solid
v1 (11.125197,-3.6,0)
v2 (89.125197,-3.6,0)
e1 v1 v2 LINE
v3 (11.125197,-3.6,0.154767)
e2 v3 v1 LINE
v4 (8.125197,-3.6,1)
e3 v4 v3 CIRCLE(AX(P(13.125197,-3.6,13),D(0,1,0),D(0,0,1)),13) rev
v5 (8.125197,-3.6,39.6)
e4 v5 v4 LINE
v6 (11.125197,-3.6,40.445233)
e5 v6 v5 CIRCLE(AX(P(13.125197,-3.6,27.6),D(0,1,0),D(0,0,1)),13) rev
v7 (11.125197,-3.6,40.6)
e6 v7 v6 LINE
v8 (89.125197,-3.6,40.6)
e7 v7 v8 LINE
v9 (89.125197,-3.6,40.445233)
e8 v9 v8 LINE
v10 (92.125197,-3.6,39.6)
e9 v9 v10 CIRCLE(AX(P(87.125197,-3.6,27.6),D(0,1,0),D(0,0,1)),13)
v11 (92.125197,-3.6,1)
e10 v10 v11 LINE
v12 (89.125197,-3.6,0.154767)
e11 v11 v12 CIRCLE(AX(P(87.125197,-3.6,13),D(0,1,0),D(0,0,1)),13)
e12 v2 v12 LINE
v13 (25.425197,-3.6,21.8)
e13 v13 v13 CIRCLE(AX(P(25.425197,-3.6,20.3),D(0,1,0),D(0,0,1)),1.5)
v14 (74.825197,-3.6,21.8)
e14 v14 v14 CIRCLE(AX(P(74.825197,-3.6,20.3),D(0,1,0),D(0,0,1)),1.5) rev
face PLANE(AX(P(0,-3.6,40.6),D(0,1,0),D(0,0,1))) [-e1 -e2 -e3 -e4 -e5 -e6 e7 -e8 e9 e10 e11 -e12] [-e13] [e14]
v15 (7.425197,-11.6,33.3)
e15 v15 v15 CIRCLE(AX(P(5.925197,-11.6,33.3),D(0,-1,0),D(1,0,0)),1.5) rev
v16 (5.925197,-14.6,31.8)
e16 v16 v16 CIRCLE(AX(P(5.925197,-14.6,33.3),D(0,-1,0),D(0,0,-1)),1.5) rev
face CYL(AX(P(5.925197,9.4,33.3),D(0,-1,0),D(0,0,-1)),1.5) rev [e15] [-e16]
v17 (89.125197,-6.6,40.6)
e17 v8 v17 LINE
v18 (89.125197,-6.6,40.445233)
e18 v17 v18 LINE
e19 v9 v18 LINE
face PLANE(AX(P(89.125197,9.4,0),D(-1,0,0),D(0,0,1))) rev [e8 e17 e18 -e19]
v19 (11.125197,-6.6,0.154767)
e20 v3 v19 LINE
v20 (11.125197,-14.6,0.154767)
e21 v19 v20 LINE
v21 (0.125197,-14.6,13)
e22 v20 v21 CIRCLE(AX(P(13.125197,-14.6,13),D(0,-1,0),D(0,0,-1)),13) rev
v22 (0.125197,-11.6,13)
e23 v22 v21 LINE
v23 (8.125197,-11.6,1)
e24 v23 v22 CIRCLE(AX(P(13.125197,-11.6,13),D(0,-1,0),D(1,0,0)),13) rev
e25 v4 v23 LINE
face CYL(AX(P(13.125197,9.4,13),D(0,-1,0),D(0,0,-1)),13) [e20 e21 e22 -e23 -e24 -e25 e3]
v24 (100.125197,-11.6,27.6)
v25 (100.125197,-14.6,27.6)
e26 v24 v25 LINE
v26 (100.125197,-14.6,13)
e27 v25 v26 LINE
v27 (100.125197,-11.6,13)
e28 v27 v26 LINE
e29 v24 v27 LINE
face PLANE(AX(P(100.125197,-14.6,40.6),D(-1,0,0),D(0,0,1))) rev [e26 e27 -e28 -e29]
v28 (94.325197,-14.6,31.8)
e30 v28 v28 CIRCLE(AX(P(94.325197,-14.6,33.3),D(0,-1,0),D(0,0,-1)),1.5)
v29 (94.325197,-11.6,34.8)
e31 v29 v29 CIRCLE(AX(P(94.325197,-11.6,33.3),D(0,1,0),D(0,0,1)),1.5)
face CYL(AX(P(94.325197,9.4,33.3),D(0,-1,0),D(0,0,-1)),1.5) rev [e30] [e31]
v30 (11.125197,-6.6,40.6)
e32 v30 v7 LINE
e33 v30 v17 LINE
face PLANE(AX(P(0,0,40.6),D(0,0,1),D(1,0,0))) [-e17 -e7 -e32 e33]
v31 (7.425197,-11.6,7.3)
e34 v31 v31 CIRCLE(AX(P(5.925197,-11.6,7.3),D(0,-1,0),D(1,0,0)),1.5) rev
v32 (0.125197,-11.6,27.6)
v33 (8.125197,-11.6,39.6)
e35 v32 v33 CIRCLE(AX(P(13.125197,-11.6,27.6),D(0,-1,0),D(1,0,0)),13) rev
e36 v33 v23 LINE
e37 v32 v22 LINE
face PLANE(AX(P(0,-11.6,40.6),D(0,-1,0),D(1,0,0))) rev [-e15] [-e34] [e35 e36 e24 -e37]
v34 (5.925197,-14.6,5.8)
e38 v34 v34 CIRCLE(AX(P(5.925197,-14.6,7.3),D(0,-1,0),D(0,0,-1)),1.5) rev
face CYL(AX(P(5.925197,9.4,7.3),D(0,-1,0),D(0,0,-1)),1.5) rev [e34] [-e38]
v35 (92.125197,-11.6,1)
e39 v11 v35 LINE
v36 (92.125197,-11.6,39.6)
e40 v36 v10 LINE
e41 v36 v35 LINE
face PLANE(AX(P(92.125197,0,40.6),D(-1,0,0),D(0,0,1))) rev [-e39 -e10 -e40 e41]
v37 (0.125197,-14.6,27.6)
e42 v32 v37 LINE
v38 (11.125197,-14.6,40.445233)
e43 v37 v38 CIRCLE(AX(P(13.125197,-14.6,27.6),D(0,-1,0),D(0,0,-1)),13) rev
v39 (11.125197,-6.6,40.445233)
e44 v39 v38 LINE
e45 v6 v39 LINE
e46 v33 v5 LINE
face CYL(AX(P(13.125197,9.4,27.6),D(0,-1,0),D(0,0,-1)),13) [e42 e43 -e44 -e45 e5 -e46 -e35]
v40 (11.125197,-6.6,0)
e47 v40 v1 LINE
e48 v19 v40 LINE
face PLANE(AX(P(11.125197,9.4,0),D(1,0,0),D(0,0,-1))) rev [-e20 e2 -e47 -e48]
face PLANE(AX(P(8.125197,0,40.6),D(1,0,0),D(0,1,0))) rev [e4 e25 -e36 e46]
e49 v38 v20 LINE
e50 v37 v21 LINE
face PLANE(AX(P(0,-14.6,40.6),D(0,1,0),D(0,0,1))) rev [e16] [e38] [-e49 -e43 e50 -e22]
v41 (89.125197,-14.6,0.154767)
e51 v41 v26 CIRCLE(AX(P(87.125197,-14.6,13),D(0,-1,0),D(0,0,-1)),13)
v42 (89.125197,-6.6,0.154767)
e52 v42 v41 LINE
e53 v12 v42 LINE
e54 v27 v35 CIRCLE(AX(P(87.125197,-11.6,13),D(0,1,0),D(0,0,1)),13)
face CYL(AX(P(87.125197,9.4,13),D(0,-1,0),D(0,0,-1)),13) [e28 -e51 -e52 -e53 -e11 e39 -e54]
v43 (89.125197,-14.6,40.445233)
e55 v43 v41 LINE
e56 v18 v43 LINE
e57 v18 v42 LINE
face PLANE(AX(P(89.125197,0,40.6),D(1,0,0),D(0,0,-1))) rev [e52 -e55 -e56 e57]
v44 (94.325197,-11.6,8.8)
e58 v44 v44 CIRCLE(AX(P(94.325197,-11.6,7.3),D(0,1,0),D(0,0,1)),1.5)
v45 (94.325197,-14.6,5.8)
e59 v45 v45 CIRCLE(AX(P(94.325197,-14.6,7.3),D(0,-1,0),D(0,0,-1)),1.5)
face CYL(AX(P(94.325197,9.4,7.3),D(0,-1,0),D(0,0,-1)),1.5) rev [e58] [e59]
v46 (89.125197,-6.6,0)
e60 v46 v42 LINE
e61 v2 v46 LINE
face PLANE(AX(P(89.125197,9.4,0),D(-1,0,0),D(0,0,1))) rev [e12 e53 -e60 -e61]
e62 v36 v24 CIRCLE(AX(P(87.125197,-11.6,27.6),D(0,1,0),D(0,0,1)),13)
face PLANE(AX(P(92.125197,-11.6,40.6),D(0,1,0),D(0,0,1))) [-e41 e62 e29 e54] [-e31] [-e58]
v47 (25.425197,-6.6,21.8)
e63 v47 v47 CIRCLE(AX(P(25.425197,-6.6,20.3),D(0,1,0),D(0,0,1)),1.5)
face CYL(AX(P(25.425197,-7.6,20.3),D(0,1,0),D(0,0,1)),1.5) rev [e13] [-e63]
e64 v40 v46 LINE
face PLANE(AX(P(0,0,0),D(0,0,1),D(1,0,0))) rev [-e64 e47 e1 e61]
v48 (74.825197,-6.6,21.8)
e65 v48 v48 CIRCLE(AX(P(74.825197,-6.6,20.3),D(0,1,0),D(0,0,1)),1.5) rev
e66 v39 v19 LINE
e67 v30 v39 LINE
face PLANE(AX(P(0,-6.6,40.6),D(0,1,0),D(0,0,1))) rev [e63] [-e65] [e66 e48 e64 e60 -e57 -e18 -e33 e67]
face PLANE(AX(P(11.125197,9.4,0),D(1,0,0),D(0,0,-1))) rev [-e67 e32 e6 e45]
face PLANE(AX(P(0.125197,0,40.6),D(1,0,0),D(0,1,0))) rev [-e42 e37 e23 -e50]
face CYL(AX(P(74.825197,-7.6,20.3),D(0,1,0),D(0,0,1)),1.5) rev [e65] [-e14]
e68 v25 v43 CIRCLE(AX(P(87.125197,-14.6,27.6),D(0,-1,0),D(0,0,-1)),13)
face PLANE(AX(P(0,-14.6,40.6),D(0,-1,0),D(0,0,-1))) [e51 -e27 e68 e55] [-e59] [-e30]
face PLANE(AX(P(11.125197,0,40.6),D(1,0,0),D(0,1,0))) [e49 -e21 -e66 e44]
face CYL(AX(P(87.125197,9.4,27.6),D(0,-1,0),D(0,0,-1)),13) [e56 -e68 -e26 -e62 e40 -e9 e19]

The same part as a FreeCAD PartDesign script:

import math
import FreeCAD as App
import Part
import Sketcher

V = App.Vector
Q = App.Units.Quantity

doc = App.newDocument("Part")
body = doc.addObject("PartDesign::Body", "Body")

# Sketch on XY plane
sketch1 = body.newObject("Sketcher::SketchObject", "Sketch")
sketch1.AttachmentSupport = (doc.getObject("XY_Plane"), [""])
sketch1.MapMode = "FlatFace"
sketch1.addGeometry(Part.LineSegment(V(8.1, -3.6, 0), V(8.1, -11.6, 0)), False)
sketch1.addGeometry(Part.LineSegment(V(8.1, -11.6, 0), V(0.1, -11.6, 0)), False)
sketch1.addGeometry(Part.LineSegment(V(0.1, -11.6, 0), V(0.1, -14.6, 0)), False)
sketch1.addGeometry(Part.LineSegment(V(0.1, -14.6, 0), V(11.1, -14.6, 0)), False)
sketch1.addGeometry(Part.LineSegment(V(11.1, -14.6, 0), V(11.1, -6.6, 0)), False)
sketch1.addGeometry(Part.LineSegment(V(11.1, -6.6, 0), V(89.1, -6.6, 0)), False)
sketch1.addGeometry(Part.LineSegment(V(89.1, -6.6, 0), V(89.1, -14.6, 0)), False)
sketch1.addGeometry(Part.LineSegment(V(89.1, -14.6, 0), V(100.1, -14.6, 0)), False)
sketch1.addGeometry(Part.LineSegment(V(100.1, -14.6, 0), V(100.1, -11.6, 0)), False)
sketch1.addGeometry(Part.LineSegment(V(100.1, -11.6, 0), V(92.1, -11.6, 0)), False)
sketch1.addGeometry(Part.LineSegment(V(92.1, -11.6, 0), V(92.1, -3.6, 0)), False)
sketch1.addGeometry(Part.LineSegment(V(92.1, -3.6, 0), V(8.1, -3.6, 0)), False)
sketch1.addConstraint(Sketcher.Constraint("Coincident", 0, 2, 1, 1))
sketch1.addConstraint(Sketcher.Constraint("Coincident", 1, 2, 2, 1))
sketch1.addConstraint(Sketcher.Constraint("Coincident", 2, 2, 3, 1))
sketch1.addConstraint(Sketcher.Constraint("Coincident", 3, 2, 4, 1))
sketch1.addConstraint(Sketcher.Constraint("Coincident", 4, 2, 5, 1))
sketch1.addConstraint(Sketcher.Constraint("Coincident", 5, 2, 6, 1))
sketch1.addConstraint(Sketcher.Constraint("Coincident", 6, 2, 7, 1))
sketch1.addConstraint(Sketcher.Constraint("Coincident", 7, 2, 8, 1))
sketch1.addConstraint(Sketcher.Constraint("Coincident", 8, 2, 9, 1))
sketch1.addConstraint(Sketcher.Constraint("Coincident", 9, 2, 10, 1))
sketch1.addConstraint(Sketcher.Constraint("Coincident", 10, 2, 11, 1))
sketch1.addConstraint(Sketcher.Constraint("Coincident", 11, 2, 0, 1))
sketch1.addConstraint(Sketcher.Constraint("Vertical", 0))
sketch1.addConstraint(Sketcher.Constraint("Horizontal", 1))
sketch1.addConstraint(Sketcher.Constraint("Vertical", 2))
sketch1.addConstraint(Sketcher.Constraint("Horizontal", 3))
sketch1.addConstraint(Sketcher.Constraint("Vertical", 4))
sketch1.addConstraint(Sketcher.Constraint("Horizontal", 5))
sketch1.addConstraint(Sketcher.Constraint("Vertical", 6))
sketch1.addConstraint(Sketcher.Constraint("Horizontal", 7))
sketch1.addConstraint(Sketcher.Constraint("Vertical", 8))
sketch1.addConstraint(Sketcher.Constraint("Horizontal", 9))
sketch1.addConstraint(Sketcher.Constraint("Vertical", 10))
sketch1.addConstraint(Sketcher.Constraint("Horizontal", 11))
sketch1.addConstraint(Sketcher.Constraint("Horizontal", 3, 2, 6, 2))
sketch1.addConstraint(Sketcher.Constraint("Horizontal", 1, 2, 8, 2))
sketch1.addConstraint(Sketcher.Constraint("Equal", 3, 7))
sketch1.addConstraint(Sketcher.Constraint("Equal", 1, 9))
sketch1.addConstraint(Sketcher.Constraint("Equal", 9, 0))
sketch1.addConstraint(Sketcher.Constraint("Equal", 0, 4))
sketch1.addConstraint(Sketcher.Constraint("DistanceX", 1, 2, 1, 1, Q("8 mm")))
sketch1.addConstraint(Sketcher.Constraint("DistanceX", 3, 1, 3, 2, Q("11 mm")))
sketch1.addConstraint(Sketcher.Constraint("DistanceX", 5, 1, 5, 2, Q("78 mm")))
sketch1.addConstraint(Sketcher.Constraint("DistanceY", 2, 2, 2, 1, Q("3 mm")))
sketch1.addConstraint(Sketcher.Constraint("DistanceY", 0, 2, -1, 1, Q("11.6 mm")))
sketch1.addConstraint(Sketcher.Constraint("DistanceX", -1, 1, 0, 2, Q("8.125197 mm")))
pad1 = body.newObject("PartDesign::Pad", "Pad")
pad1.Profile = sketch1
pad1.Length = 40.6

# Sketch on XZ plane
sketch2 = body.newObject("Sketcher::SketchObject", "Sketch001")
sketch2.AttachmentSupport = (doc.getObject("XZ_Plane"), [""])
sketch2.MapMode = "FlatFace"
sketch2.AttachmentOffset = App.Placement(V(0, 0, 14.6), App.Rotation())
sketch2.addGeometry(Part.LineSegment(V(89.13, 0.15, 0), V(89.13, 0, 0)), False)
sketch2.addGeometry(Part.LineSegment(V(89.13, 0, 0), V(100.13, 0, 0)), False)
sketch2.addGeometry(Part.LineSegment(V(100.13, 0, 0), V(100.13, 13, 0)), False)
sketch2.addGeometry(Part.ArcOfCircle(Part.Circle(V(87.13, 13, 0), V(0, 0, 1), 13), math.radians(-81), math.radians(0)), False)
sketch2.addGeometry(Part.LineSegment(V(89.13, 40.6, 0), V(89.13, 40.45, 0)), False)
sketch2.addGeometry(Part.ArcOfCircle(Part.Circle(V(87.13, 27.6, 0), V(0, 0, 1), 13), math.radians(0), math.radians(81)), False)
sketch2.addGeometry(Part.LineSegment(V(100.13, 27.6, 0), V(100.13, 40.6, 0)), False)
sketch2.addGeometry(Part.LineSegment(V(100.13, 40.6, 0), V(89.13, 40.6, 0)), False)
sketch2.addGeometry(Part.LineSegment(V(0.13, 0, 0), V(11.13, 0, 0)), False)
sketch2.addGeometry(Part.LineSegment(V(11.13, 0, 0), V(11.13, 0.15, 0)), False)
sketch2.addGeometry(Part.ArcOfCircle(Part.Circle(V(13.13, 13, 0), V(0, 0, 1), 13), math.radians(180), math.radians(261)), False)
sketch2.addGeometry(Part.LineSegment(V(0.13, 13, 0), V(0.13, 0, 0)), False)
sketch2.addGeometry(Part.ArcOfCircle(Part.Circle(V(13.13, 27.6, 0), V(0, 0, 1), 13), math.radians(99), math.radians(180)), False)
sketch2.addGeometry(Part.LineSegment(V(11.13, 40.45, 0), V(11.13, 40.6, 0)), False)
sketch2.addGeometry(Part.LineSegment(V(11.13, 40.6, 0), V(0.13, 40.6, 0)), False)
sketch2.addGeometry(Part.LineSegment(V(0.13, 40.6, 0), V(0.13, 27.6, 0)), False)
sketch2.addGeometry(Part.Circle(V(94.33, 33.3, 0), V(0, 0, 1), 1.5), False)
sketch2.addGeometry(Part.Circle(V(94.33, 7.3, 0), V(0, 0, 1), 1.5), False)
sketch2.addGeometry(Part.Circle(V(5.93, 33.3, 0), V(0, 0, 1), 1.5), False)
sketch2.addGeometry(Part.Circle(V(5.93, 7.3, 0), V(0, 0, 1), 1.5), False)
sketch2.addConstraint(Sketcher.Constraint("Coincident", 0, 2, 1, 1))
sketch2.addConstraint(Sketcher.Constraint("Coincident", 1, 2, 2, 1))
sketch2.addConstraint(Sketcher.Constraint("Tangent", 2, 2, 3, 2))
sketch2.addConstraint(Sketcher.Constraint("Coincident", 3, 1, 0, 1))
sketch2.addConstraint(Sketcher.Constraint("Coincident", 4, 2, 5, 2))
sketch2.addConstraint(Sketcher.Constraint("Tangent", 5, 1, 6, 1))
sketch2.addConstraint(Sketcher.Constraint("Coincident", 6, 2, 7, 1))
sketch2.addConstraint(Sketcher.Constraint("Coincident", 7, 2, 4, 1))
sketch2.addConstraint(Sketcher.Constraint("Coincident", 8, 2, 9, 1))
sketch2.addConstraint(Sketcher.Constraint("Coincident", 9, 2, 10, 2))
sketch2.addConstraint(Sketcher.Constraint("Tangent", 10, 1, 11, 1))
sketch2.addConstraint(Sketcher.Constraint("Coincident", 11, 2, 8, 1))
sketch2.addConstraint(Sketcher.Constraint("Coincident", 12, 1, 13, 1))
sketch2.addConstraint(Sketcher.Constraint("Coincident", 13, 2, 14, 1))
sketch2.addConstraint(Sketcher.Constraint("Coincident", 14, 2, 15, 1))
sketch2.addConstraint(Sketcher.Constraint("Tangent", 15, 2, 12, 2))
sketch2.addConstraint(Sketcher.Constraint("Vertical", 0))
sketch2.addConstraint(Sketcher.Constraint("Horizontal", 1))
sketch2.addConstraint(Sketcher.Constraint("Vertical", 2))
sketch2.addConstraint(Sketcher.Constraint("Vertical", 4))
sketch2.addConstraint(Sketcher.Constraint("Vertical", 6))
sketch2.addConstraint(Sketcher.Constraint("Horizontal", 7))
sketch2.addConstraint(Sketcher.Constraint("Horizontal", 8))
sketch2.addConstraint(Sketcher.Constraint("Vertical", 9))
sketch2.addConstraint(Sketcher.Constraint("Vertical", 11))
sketch2.addConstraint(Sketcher.Constraint("Vertical", 13))
sketch2.addConstraint(Sketcher.Constraint("Horizontal", 14))
sketch2.addConstraint(Sketcher.Constraint("Vertical", 15))
sketch2.addConstraint(Sketcher.Constraint("Equal", 3, 5))
sketch2.addConstraint(Sketcher.Constraint("Equal", 5, 10))
sketch2.addConstraint(Sketcher.Constraint("Equal", 10, 12))
sketch2.addConstraint(Sketcher.Constraint("Equal", 16, 17))
sketch2.addConstraint(Sketcher.Constraint("Equal", 17, 18))
sketch2.addConstraint(Sketcher.Constraint("Equal", 18, 19))
sketch2.addConstraint(Sketcher.Constraint("PointOnObject", 0, 2, -1))
sketch2.addConstraint(Sketcher.Constraint("PointOnObject", 8, 2, -1))
sketch2.addConstraint(Sketcher.Constraint("Horizontal", 3, 3, 10, 3))
sketch2.addConstraint(Sketcher.Constraint("Horizontal", 5, 3, 12, 3))
sketch2.addConstraint(Sketcher.Constraint("Horizontal", 16, 3, 18, 3))
sketch2.addConstraint(Sketcher.Constraint("Horizontal", 17, 3, 19, 3))
sketch2.addConstraint(Sketcher.Constraint("Horizontal", 3, 1, 9, 2))
sketch2.addConstraint(Sketcher.Constraint("Horizontal", 4, 2, 12, 1))
sketch2.addConstraint(Sketcher.Constraint("Horizontal", 7, 2, 13, 2))
sketch2.addConstraint(Sketcher.Constraint("Vertical", 3, 3, 5, 3))
sketch2.addConstraint(Sketcher.Constraint("Vertical", 10, 3, 12, 3))
sketch2.addConstraint(Sketcher.Constraint("Vertical", 16, 3, 17, 3))
sketch2.addConstraint(Sketcher.Constraint("Vertical", 18, 3, 19, 3))
sketch2.addConstraint(Sketcher.Constraint("Vertical", 3, 1, 4, 2))
sketch2.addConstraint(Sketcher.Constraint("Equal", 0, 4))
sketch2.addConstraint(Sketcher.Constraint("Diameter", 16, Q("3 mm")))
sketch2.addConstraint(Sketcher.Constraint("Radius", 3, Q("13 mm")))
sketch2.addConstraint(Sketcher.Constraint("DistanceX", 1, 1, 1, 2, Q("11 mm")))
sketch2.addConstraint(Sketcher.Constraint("DistanceY", 2, 1, 2, 2, Q("13 mm")))
sketch2.addConstraint(Sketcher.Constraint("DistanceX", 10, 3, 3, 3, Q("74 mm")))
sketch2.addConstraint(Sketcher.Constraint("DistanceY", 17, 3, 16, 3, Q("26 mm")))
sketch2.addConstraint(Sketcher.Constraint("DistanceY", -1, 1, 5, 3, Q("27.6 mm")))
sketch2.addConstraint(Sketcher.Constraint("DistanceY", -1, 1, 16, 3, Q("33.3 mm")))
sketch2.addConstraint(Sketcher.Constraint("DistanceX", 5, 3, 16, 3, Q("7.2 mm")))
sketch2.addConstraint(Sketcher.Constraint("DistanceX", 18, 3, 12, 3, Q("7.2 mm")))
sketch2.addConstraint(Sketcher.Constraint("DistanceX", -1, 1, 3, 3, Q("87.125197 mm")))
pocket1 = body.newObject("PartDesign::Pocket", "Pocket")
pocket1.Profile = sketch2
pocket1.Length = 24

# Sketch on XZ plane
sketch3 = body.newObject("Sketcher::SketchObject", "Sketch002")
sketch3.AttachmentSupport = (doc.getObject("XZ_Plane"), [""])
sketch3.MapMode = "FlatFace"
sketch3.AttachmentOffset = App.Placement(V(0, 0, 3.6), App.Rotation())
sketch3.addGeometry(Part.Circle(V(25.4, 20.3, 0), V(0, 0, 1), 1.5), False)
sketch3.addGeometry(Part.Circle(V(74.8, 20.3, 0), V(0, 0, 1), 1.5), False)
sketch3.addConstraint(Sketcher.Constraint("Equal", 0, 1))
sketch3.addConstraint(Sketcher.Constraint("Horizontal", 0, 3, 1, 3))
sketch3.addConstraint(Sketcher.Constraint("Diameter", 0, Q("3 mm")))
sketch3.addConstraint(Sketcher.Constraint("DistanceY", -1, 1, 0, 3, Q("20.3 mm")))
sketch3.addConstraint(Sketcher.Constraint("DistanceX", 0, 3, 1, 3, Q("49.4 mm")))
sketch3.addConstraint(Sketcher.Constraint("DistanceX", -1, 1, 0, 3, Q("25.425197 mm")))
pocket2 = body.newObject("PartDesign::Pocket", "Pocket001")
pocket2.Profile = sketch3
pocket2.Length = 4
pocket2.Reversed = True

doc.recompute()
